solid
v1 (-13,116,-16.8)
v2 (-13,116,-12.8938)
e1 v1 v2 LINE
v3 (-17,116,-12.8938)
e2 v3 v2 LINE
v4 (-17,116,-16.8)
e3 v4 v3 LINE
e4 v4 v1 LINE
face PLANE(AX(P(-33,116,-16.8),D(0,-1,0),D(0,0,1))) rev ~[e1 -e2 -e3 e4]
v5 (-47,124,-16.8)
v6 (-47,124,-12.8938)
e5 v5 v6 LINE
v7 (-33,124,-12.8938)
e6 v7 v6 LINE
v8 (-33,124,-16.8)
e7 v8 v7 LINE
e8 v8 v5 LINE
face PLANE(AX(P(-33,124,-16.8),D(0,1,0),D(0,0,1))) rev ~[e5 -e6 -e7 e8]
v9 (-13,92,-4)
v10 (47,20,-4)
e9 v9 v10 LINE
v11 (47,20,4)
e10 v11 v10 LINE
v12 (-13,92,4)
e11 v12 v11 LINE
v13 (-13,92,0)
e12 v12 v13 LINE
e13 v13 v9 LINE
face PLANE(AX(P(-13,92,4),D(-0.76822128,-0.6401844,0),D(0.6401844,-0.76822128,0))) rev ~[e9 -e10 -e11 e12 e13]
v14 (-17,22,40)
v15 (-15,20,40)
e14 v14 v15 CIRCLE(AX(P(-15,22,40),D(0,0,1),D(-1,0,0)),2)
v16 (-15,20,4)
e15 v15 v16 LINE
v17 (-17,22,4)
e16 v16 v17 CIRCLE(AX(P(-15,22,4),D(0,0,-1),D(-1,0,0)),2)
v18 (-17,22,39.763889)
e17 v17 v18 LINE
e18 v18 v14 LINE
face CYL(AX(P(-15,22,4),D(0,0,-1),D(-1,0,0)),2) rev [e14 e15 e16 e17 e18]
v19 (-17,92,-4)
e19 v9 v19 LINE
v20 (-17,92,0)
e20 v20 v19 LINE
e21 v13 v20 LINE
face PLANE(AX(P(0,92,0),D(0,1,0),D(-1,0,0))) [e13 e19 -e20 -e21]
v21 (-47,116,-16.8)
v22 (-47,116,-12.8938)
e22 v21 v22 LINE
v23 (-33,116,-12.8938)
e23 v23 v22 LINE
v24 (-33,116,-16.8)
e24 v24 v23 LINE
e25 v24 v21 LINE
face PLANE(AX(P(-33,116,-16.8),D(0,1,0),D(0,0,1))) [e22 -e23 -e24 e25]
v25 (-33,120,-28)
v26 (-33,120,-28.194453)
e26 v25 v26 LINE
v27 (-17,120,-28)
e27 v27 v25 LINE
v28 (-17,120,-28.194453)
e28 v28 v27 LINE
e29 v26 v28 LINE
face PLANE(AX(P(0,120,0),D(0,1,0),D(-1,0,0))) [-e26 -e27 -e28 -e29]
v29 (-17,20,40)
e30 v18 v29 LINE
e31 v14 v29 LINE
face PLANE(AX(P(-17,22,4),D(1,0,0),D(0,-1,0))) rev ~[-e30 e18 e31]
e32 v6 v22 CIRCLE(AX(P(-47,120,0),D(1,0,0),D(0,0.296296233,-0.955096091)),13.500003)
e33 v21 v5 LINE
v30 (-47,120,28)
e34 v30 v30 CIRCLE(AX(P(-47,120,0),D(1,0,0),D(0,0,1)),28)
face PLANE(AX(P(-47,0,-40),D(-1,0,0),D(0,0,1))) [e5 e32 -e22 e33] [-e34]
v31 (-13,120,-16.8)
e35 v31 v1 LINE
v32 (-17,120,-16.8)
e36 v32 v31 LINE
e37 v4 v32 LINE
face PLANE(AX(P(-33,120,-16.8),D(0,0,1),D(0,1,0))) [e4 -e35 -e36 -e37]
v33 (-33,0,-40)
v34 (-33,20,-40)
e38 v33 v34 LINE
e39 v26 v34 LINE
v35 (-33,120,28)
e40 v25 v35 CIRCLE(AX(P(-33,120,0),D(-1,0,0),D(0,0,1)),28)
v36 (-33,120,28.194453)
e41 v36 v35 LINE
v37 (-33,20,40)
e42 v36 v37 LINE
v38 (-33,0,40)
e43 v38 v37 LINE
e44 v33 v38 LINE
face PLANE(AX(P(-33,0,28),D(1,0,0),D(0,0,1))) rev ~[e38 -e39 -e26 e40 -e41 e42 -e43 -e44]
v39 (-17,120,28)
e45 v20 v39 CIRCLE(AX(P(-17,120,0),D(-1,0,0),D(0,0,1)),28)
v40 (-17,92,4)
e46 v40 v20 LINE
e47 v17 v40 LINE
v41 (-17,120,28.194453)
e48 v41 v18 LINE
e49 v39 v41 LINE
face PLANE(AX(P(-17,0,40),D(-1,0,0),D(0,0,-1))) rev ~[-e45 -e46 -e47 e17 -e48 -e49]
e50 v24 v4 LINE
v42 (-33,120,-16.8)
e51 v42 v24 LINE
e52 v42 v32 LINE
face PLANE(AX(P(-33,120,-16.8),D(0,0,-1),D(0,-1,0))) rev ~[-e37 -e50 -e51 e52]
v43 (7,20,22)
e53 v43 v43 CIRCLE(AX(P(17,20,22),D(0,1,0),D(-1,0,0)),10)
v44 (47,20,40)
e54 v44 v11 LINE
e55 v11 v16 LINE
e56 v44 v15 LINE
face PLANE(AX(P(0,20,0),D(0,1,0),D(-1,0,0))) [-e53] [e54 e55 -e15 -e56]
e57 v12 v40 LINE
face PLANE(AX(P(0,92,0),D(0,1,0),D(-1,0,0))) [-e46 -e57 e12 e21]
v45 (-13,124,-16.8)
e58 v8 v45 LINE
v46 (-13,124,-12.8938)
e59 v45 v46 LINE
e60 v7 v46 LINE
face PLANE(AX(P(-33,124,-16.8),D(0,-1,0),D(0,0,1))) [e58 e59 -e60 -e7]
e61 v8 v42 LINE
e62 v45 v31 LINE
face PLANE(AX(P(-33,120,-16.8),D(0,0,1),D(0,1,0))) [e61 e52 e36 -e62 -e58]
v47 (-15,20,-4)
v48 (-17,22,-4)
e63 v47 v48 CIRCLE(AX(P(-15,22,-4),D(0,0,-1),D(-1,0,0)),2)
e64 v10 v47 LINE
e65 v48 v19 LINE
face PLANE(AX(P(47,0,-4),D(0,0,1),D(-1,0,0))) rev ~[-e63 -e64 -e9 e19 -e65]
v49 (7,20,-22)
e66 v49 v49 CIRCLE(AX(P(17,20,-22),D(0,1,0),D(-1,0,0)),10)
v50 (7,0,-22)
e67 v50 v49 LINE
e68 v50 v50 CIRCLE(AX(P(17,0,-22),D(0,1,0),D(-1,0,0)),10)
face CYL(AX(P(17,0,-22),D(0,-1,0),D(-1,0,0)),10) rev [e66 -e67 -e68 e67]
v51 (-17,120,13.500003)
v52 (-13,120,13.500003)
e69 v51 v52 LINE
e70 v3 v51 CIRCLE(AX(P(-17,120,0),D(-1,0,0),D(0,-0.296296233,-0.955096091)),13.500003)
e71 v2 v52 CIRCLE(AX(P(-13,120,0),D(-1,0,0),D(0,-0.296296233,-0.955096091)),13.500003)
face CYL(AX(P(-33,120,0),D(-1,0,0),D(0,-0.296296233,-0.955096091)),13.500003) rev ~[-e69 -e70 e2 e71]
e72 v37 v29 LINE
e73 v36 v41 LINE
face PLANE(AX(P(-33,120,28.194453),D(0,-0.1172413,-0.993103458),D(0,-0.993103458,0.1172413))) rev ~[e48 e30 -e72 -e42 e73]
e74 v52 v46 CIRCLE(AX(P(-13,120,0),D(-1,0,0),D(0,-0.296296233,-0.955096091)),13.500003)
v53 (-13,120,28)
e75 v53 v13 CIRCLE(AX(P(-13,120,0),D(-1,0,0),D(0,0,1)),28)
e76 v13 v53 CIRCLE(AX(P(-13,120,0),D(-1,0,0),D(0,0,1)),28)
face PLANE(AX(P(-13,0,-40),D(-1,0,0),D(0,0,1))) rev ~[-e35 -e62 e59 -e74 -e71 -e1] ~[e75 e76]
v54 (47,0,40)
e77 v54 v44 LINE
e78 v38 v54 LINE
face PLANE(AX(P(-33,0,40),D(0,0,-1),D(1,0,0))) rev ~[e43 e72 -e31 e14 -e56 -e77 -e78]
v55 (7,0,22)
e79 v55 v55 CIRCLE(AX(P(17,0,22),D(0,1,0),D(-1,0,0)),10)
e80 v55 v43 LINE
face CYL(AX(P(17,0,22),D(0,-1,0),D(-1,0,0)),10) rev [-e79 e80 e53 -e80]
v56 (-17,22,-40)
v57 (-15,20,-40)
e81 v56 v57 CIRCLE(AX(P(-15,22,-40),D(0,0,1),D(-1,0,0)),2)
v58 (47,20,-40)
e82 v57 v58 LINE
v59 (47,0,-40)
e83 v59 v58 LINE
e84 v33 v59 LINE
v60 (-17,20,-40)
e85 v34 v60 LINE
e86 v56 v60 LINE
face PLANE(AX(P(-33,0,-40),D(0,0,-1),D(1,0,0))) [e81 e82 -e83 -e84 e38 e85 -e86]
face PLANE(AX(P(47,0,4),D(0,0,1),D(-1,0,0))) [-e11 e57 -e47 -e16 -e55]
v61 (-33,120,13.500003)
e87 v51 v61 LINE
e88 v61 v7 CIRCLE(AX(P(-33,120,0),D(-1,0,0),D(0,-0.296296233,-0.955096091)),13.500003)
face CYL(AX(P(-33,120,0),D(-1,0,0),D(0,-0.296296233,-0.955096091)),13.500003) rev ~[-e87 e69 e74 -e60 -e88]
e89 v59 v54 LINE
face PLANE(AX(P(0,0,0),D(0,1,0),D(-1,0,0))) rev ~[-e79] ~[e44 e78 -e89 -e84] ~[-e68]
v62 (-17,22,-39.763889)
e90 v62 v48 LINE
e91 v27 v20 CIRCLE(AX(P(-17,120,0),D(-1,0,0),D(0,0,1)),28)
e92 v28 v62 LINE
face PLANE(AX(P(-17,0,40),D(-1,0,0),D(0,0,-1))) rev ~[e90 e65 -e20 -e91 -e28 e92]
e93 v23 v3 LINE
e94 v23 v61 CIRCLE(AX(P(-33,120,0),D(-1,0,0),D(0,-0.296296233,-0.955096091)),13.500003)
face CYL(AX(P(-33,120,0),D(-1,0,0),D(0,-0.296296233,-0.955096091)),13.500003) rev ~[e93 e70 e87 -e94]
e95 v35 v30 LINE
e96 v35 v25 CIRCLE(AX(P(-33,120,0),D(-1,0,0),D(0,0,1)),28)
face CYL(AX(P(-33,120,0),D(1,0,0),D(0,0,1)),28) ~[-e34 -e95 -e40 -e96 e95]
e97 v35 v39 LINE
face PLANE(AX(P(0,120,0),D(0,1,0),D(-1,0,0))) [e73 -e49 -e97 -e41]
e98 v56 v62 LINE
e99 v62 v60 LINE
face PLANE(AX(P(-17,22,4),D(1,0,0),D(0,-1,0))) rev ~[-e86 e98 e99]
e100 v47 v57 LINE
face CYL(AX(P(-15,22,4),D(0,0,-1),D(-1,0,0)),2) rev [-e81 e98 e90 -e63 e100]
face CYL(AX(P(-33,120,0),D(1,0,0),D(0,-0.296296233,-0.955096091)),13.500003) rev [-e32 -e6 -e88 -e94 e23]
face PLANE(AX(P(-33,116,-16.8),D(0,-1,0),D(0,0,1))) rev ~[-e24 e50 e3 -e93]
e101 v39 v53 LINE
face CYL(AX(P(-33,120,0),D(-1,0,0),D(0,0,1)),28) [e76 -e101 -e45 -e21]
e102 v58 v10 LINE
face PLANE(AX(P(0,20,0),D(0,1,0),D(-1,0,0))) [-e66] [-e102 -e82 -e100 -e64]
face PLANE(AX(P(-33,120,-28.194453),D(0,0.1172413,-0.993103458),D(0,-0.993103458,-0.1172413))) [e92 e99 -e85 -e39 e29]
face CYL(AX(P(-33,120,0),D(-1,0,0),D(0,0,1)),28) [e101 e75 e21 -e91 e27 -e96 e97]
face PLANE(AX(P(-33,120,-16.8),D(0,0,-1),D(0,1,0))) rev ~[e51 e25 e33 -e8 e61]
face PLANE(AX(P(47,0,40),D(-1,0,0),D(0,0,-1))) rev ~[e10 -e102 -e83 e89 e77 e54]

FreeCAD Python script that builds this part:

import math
import FreeCAD as App
import Part
import Sketcher

doc = App.newDocument("Part")
body = doc.addObject("PartDesign::Body", "Body")
body.AllowCompound = True

sketch1 = body.newObject("Sketcher::SketchObject", "Sketch")
sketch1.AttachmentSupport = (doc.getObject("XZ_Plane"), [""])
sketch1.MapMode = "FlatFace"
sketch1.addGeometry([
    Part.LineSegment(App.Vector(-17, 40, 0), App.Vector(47, 40, 0)),
    Part.LineSegment(App.Vector(47, 40, 0), App.Vector(47, 4, 0)),
    Part.LineSegment(App.Vector(47, 4, 0), App.Vector(-17, 4, 0)),
    Part.LineSegment(App.Vector(-17, 4, 0), App.Vector(-17, 40, 0)),
    Part.Circle(App.Vector(17, 22, 0), App.Vector(0, 0, 1), 10),
    Part.LineSegment(App.Vector(-17, -4, 0), App.Vector(47, -4, 0)),
    Part.LineSegment(App.Vector(47, -4, 0), App.Vector(47, -40, 0)),
    Part.LineSegment(App.Vector(47, -40, 0), App.Vector(-17, -40, 0)),
    Part.LineSegment(App.Vector(-17, -40, 0), App.Vector(-17, -4, 0)),
    Part.Circle(App.Vector(17, -22, 0), App.Vector(0, 0, 1), 10),
], False)
sketch1.addConstraint([
    Sketcher.Constraint("Coincident", 0, 2, 1, 1),
    Sketcher.Constraint("Coincident", 1, 2, 2, 1),
    Sketcher.Constraint("Coincident", 2, 2, 3, 1),
    Sketcher.Constraint("Coincident", 3, 2, 0, 1),
    Sketcher.Constraint("Coincident", 5, 2, 6, 1),
    Sketcher.Constraint("Coincident", 6, 2, 7, 1),
    Sketcher.Constraint("Coincident", 7, 2, 8, 1),
    Sketcher.Constraint("Coincident", 8, 2, 5, 1),
    Sketcher.Constraint("Horizontal", 0),
    Sketcher.Constraint("Vertical", 1),
    Sketcher.Constraint("Horizontal", 2),
    Sketcher.Constraint("Vertical", 3),
    Sketcher.Constraint("Horizontal", 5),
    Sketcher.Constraint("Vertical", 6),
    Sketcher.Constraint("Horizontal", 7),
    Sketcher.Constraint("Vertical", 8),
    Sketcher.Constraint("Equal", 4, 9),
    Sketcher.Constraint("Symmetric", 4, 3, 9, 3, -1),
    Sketcher.Constraint("Symmetric", 1, 2, 5, 2, -1),
    Sketcher.Constraint("Symmetric", 3, 2, 7, 2, -1),
    Sketcher.Constraint("Diameter", 4, 20.0),
    Sketcher.Constraint("DistanceY", -1, 1, 4, 3, 22.0),
    Sketcher.Constraint("DistanceX", -1, 1, 0, 2, 47.0),
    Sketcher.Constraint("DistanceY", -1, 1, 0, 2, 40.0),
    Sketcher.Constraint("DistanceY", -1, 1, 1, 2, 4.0),
    Sketcher.Constraint("DistanceX", 4, 3, 0, 2, 30.0),
    Sketcher.Constraint("DistanceX", 2, 2, 4, 3, 34.0),
])
pad1 = body.newObject("PartDesign::Pad", "Pad")
pad1.Profile = sketch1
pad1.Length = 20
pad1.Reversed = True

sketch2 = body.newObject("Sketcher::SketchObject", "Sketch001")
sketch2.AttachmentSupport = (doc.getObject("XZ_Plane"), [""])
sketch2.MapMode = "FlatFace"
sketch2.addGeometry([
    Part.LineSegment(App.Vector(-33, 40, 0), App.Vector(-17, 40, 0)),
    Part.LineSegment(App.Vector(-17, 40, 0), App.Vector(-17, -40, 0)),
    Part.LineSegment(App.Vector(-17, -40, 0), App.Vector(-33, -40, 0)),
    Part.LineSegment(App.Vector(-33, -40, 0), App.Vector(-33, 40, 0)),
], False)
sketch2.addConstraint([
    Sketcher.Constraint("Coincident", 0, 2, 1, 1),
    Sketcher.Constraint("Coincident", 1, 2, 2, 1),
    Sketcher.Constraint("Coincident", 2, 2, 3, 1),
    Sketcher.Constraint("Coincident", 3, 2, 0, 1),
    Sketcher.Constraint("Horizontal", 0),
    Sketcher.Constraint("Vertical", 1),
    Sketcher.Constraint("Horizontal", 2),
    Sketcher.Constraint("Vertical", 3),
    Sketcher.Constraint("DistanceX", 0, 1, 0, 2, 16.0),
    Sketcher.Constraint("DistanceY", -1, 1, 0, 2, 40.0),
    Sketcher.Constraint("DistanceY", 1, 2, -1, 1, 40.0),
    Sketcher.Constraint("DistanceX", 0, 2, -1, 1, 17.0),
])
pad2 = body.newObject("PartDesign::Pad", "Pad001")
pad2.Profile = sketch2
pad2.Length = 120
pad2.Reversed = True

sketch3 = body.newObject("Sketcher::SketchObject", "Sketch002")
sketch3.AttachmentSupport = (doc.getObject("YZ_Plane"), [""])
sketch3.MapMode = "FlatFace"
sketch3.AttachmentOffset = App.Placement(App.Vector(0, 0, -33), App.Rotation())
sketch3.addGeometry([
    Part.Circle(App.Vector(120, 0, 0), App.Vector(0, 0, 1), 28),
    Part.ArcOfCircle(Part.Circle(App.Vector(120, 0, 0), App.Vector(0, 0, 1), 13.5), math.radians(-73), math.radians(253)),
    Part.LineSegment(App.Vector(116, -12.9, 0), App.Vector(116, -16.8, 0)),
    Part.LineSegment(App.Vector(116, -16.8, 0), App.Vector(124, -16.8, 0)),
    Part.LineSegment(App.Vector(124, -16.8, 0), App.Vector(124, -12.9, 0)),
], False)
sketch3.addConstraint([
    Sketcher.Constraint("Coincident", 1, 2, 2, 1),
    Sketcher.Constraint("Coincident", 2, 2, 3, 1),
    Sketcher.Constraint("Coincident", 3, 2, 4, 1),
    Sketcher.Constraint("Coincident", 4, 2, 1, 1),
    Sketcher.Constraint("Vertical", 2),
    Sketcher.Constraint("Horizontal", 3),
    Sketcher.Constraint("Vertical", 4),
    Sketcher.Constraint("Coincident", 1, 3, 0, 3),
    Sketcher.Constraint("PointOnObject", 0, 3, -1),
    Sketcher.Constraint("Horizontal", 1, 2, 4, 2),
    Sketcher.Constraint("Diameter", 0, 56.0),
    Sketcher.Constraint("Radius", 1, 13.5),
    Sketcher.Constraint("DistanceX", 3, 1, 3, 2, 8.0),
    Sketcher.Constraint("DistanceX", -1, 1, 0, 3, 120.0),
    Sketcher.Constraint("DistanceY", 2, 2, -1, 1, 16.8),
])
pad3 = body.newObject("PartDesign::Pad", "Pad002")
pad3.Profile = sketch3
pad3.Type = "TwoLengths"
pad3.Length = 14
pad3.Length2 = 20
pad3.Reversed = True

sketch4 = body.newObject("Sketcher::SketchObject", "Sketch003")
sketch4.AttachmentSupport = (doc.getObject("YZ_Plane"), [""])
sketch4.MapMode = "FlatFace"
sketch4.AttachmentOffset = App.Placement(App.Vector(0, 0, -33), App.Rotation())
sketch4.addGeometry([
    Part.LineSegment(App.Vector(120, -40, 0), App.Vector(20, -40, 0)),
    Part.LineSegment(App.Vector(20, -40, 0), App.Vector(120, -28.2, 0)),
    Part.LineSegment(App.Vector(120, -28.2, 0), App.Vector(120, -40, 0)),
    Part.LineSegment(App.Vector(120, 28.2, 0), App.Vector(20, 40, 0)),
    Part.LineSegment(App.Vector(20, 40, 0), App.Vector(120, 40, 0)),
    Part.LineSegment(App.Vector(120, 40, 0), App.Vector(120, 28.2, 0)),
    Part.LineSegment(App.Vector(120, 13.5, 0), App.Vector(120, -16.8, 0)),
    Part.LineSegment(App.Vector(120, -16.8, 0), App.Vector(116, -16.8, 0)),
    Part.LineSegment(App.Vector(116, -16.8, 0), App.Vector(116, -12.9, 0)),
    Part.ArcOfCircle(Part.Circle(App.Vector(120, 0, 0), App.Vector(0, 0, 1), 13.5), math.radians(90), math.radians(253)),
], False)
sketch4.addConstraint([
    Sketcher.Constraint("Coincident", 0, 2, 1, 1),
    Sketcher.Constraint("Coincident", 1, 2, 2, 1),
    Sketcher.Constraint("Coincident", 2, 2, 0, 1),
    Sketcher.Constraint("Coincident", 3, 2, 4, 1),
    Sketcher.Constraint("Coincident", 4, 2, 5, 1),
    Sketcher.Constraint("Coincident", 5, 2, 3, 1),
    Sketcher.Constraint("Coincident", 6, 2, 7, 1),
    Sketcher.Constraint("Coincident", 7, 2, 8, 1),
    Sketcher.Constraint("Coincident", 8, 2, 9, 2),
    Sketcher.Constraint("Coincident", 9, 1, 6, 1),
    Sketcher.Constraint("Horizontal", 0),
    Sketcher.Constraint("Vertical", 2),
    Sketcher.Constraint("Horizontal", 4),
    Sketcher.Constraint("Vertical", 5),
    Sketcher.Constraint("Vertical", 6),
    Sketcher.Constraint("Horizontal", 7),
    Sketcher.Constraint("Vertical", 8),
    Sketcher.Constraint("Symmetric", 0, 2, 3, 2, -1),
    Sketcher.Constraint("Symmetric", 1, 2, 5, 2, -1),
    Sketcher.Constraint("PointOnObject", 9, 3, -1),
    Sketcher.Constraint("Vertical", 9, 3, 1, 2),
    Sketcher.Constraint("Vertical", 5, 2, 6, 2),
    Sketcher.Constraint("Radius", 9, 13.5),
    Sketcher.Constraint("DistanceY", 6, 2, 6, 1, 30.3),
    Sketcher.Constraint("DistanceX", 0, 2, 0, 1, 100.0),
    Sketcher.Constraint("DistanceX", 7, 2, 7, 1, 4.0),
    Sketcher.Constraint("DistanceX", -1, 1, 9, 3, 120.0),
    Sketcher.Constraint("DistanceY", 0, 2, -1, 1, 40.0),
    Sketcher.Constraint("DistanceY", 2, 2, 2, 1, 11.8055),
])
pocket1 = body.newObject("PartDesign::Pocket", "Pocket")
pocket1.Profile = sketch4
pocket1.Length = 30
pocket1.Reversed = True

sketch5 = body.newObject("Sketcher::SketchObject", "Sketch004")
sketch5.AttachmentSupport = (doc.getObject("XZ_Plane"), [""])
sketch5.MapMode = "FlatFace"
sketch5.addGeometry([
    Part.LineSegment(App.Vector(-17, 4, 0), App.Vector(47, 4, 0)),
    Part.LineSegment(App.Vector(47, 4, 0), App.Vector(47, -4, 0)),
    Part.LineSegment(App.Vector(47, -4, 0), App.Vector(-17, -4, 0)),
    Part.LineSegment(App.Vector(-17, -4, 0), App.Vector(-17, 4, 0)),
], False)
sketch5.addConstraint([
    Sketcher.Constraint("Coincident", 0, 2, 1, 1),
    Sketcher.Constraint("Coincident", 1, 2, 2, 1),
    Sketcher.Constraint("Coincident", 2, 2, 3, 1),
    Sketcher.Constraint("Coincident", 3, 2, 0, 1),
    Sketcher.Constraint("Horizontal", 0),
    Sketcher.Constraint("Vertical", 1),
    Sketcher.Constraint("Horizontal", 2),
    Sketcher.Constraint("Vertical", 3),
    Sketcher.Constraint("DistanceX", -1, 1, 0, 2, 47.0),
    Sketcher.Constraint("DistanceY", -1, 1, 0, 2, 4.0),
    Sketcher.Constraint("DistanceY", 1, 2, -1, 1, 4.0),
    Sketcher.Constraint("DistanceX", 0, 1, 0, 2, 64.0),
])
pad4 = body.newObject("PartDesign::Pad", "Pad003")
pad4.Profile = sketch5
pad4.Length = 92
pad4.Reversed = True

sketch6 = body.newObject("Sketcher::SketchObject", "Sketch005")
sketch6.AttachmentSupport = (doc.getObject("XY_Plane"), [""])
sketch6.MapMode = "FlatFace"
sketch6.AttachmentOffset = App.Placement(App.Vector(0, 0, 4), App.Rotation())
sketch6.addGeometry([
    Part.LineSegment(App.Vector(-13, 92, 0), App.Vector(47, 20, 0)),
    Part.LineSegment(App.Vector(47, 20, 0), App.Vector(47, 92, 0)),
    Part.LineSegment(App.Vector(47, 92, 0), App.Vector(-13, 92, 0)),
], False)
sketch6.addConstraint([
    Sketcher.Constraint("Coincident", 0, 2, 1, 1),
    Sketcher.Constraint("Coincident", 1, 2, 2, 1),
    Sketcher.Constraint("Coincident", 2, 2, 0, 1),
    Sketcher.Constraint("Vertical", 1),
    Sketcher.Constraint("Horizontal", 2),
    Sketcher.Constraint("DistanceX", 2, 2, 2, 1, 60.0),
    Sketcher.Constraint("DistanceY", 1, 1, 1, 2, 72.0),
    Sketcher.Constraint("DistanceX", -1, 1, 0, 2, 47.0),
    Sketcher.Constraint("DistanceY", -1, 1, 0, 2, 20.0),
])
pocket2 = body.newObject("PartDesign::Pocket", "Pocket001")
pocket2.Profile = sketch6
pocket2.Length = 20

sketch7 = body.newObject("Sketcher::SketchObject", "Sketch006")
sketch7.AttachmentSupport = (doc.getObject("XY_Plane"), [""])
sketch7.MapMode = "FlatFace"
sketch7.AttachmentOffset = App.Placement(App.Vector(0, 0, 4), App.Rotation())
sketch7.addGeometry([
    Part.ArcOfCircle(Part.Circle(App.Vector(-15, 22, 0), App.Vector(0, 0, 1), 2), math.radians(180), math.radians(270)),
    Part.LineSegment(App.Vector(-17, 22, 0), App.Vector(-17, 20, 0)),
    Part.LineSegment(App.Vector(-17, 20, 0), App.Vector(-15, 20, 0)),
], False)
sketch7.addConstraint([
    Sketcher.Constraint("Tangent", 0, 1, 1, 1),
    Sketcher.Constraint("Coincident", 1, 2, 2, 1),
    Sketcher.Constraint("Tangent", 2, 2, 0, 2),
    Sketcher.Constraint("Vertical", 1),
    Sketcher.Constraint("Horizontal", 2),
    Sketcher.Constraint("Radius", 0, 2.0),
    Sketcher.Constraint("DistanceX", 0, 3, -1, 1, 15.0),
    Sketcher.Constraint("DistanceY", -1, 1, 0, 3, 22.0),
])
pad5 = body.newObject("PartDesign::Pad", "Pad004")
pad5.Profile = sketch7
pad5.Type = "TwoLengths"
pad5.Length = 36
pad5.Length2 = 44

doc.recompute()
